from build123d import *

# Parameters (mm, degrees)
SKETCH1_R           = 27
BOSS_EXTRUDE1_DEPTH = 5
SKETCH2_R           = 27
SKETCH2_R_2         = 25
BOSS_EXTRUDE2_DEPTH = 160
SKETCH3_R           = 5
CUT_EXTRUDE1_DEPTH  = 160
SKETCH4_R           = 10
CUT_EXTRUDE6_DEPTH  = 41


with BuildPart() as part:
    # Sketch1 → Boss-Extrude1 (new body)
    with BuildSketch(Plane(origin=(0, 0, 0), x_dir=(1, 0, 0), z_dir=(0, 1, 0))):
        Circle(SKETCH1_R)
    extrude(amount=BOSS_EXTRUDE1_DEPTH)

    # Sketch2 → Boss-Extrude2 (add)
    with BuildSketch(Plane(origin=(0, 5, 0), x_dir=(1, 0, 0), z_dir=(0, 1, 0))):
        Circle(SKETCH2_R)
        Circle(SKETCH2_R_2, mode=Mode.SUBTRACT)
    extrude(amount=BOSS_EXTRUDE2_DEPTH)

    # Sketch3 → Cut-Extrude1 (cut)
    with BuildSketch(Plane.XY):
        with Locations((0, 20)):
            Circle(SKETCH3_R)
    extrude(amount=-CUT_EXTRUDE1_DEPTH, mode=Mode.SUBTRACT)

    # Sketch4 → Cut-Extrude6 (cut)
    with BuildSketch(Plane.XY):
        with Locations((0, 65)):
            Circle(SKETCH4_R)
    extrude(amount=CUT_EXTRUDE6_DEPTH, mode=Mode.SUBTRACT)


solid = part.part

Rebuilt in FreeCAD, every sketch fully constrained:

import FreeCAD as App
import Part
import Sketcher
Q = App.Units.Quantity

doc = App.newDocument("Part")
params = doc.addObject("Spreadsheet::Sheet", "Params")
for row, (alias, value) in enumerate([
    ("sketch1_diameter", "54 mm"),
    ("pad1_length", "5 mm"),
    ("sketch2_diameter", "54 mm"),
    ("sketch2_diameter2", "50 mm"),
    ("pad2_length", "160 mm"),
    ("sketch3_diameter", "10 mm"),
    ("pocket1_length", "160 mm"),
    ("sketch4_diameter", "20 mm"),
    ("pocket2_length", "41 mm"),
], start=1):
    params.set(f"A{row}", alias)
    params.set(f"B{row}", "=" + value)
    params.setAlias(f"B{row}", alias)

body = doc.addObject("PartDesign::Body", "Body")

# Sketch on XZ plane
sketch1 = doc.addObject("Sketcher::SketchObject", "Sketch")
body.addObject(sketch1)
sketch1.AttachmentSupport = (doc.XZ_Plane, [""])
sketch1.MapMode = "FlatFace"
sketch1.addGeometry(Part.Circle(App.Vector(0, 0, 0), App.Vector(0, 0, 1), 27), False)
sketch1.addConstraint(Sketcher.Constraint("Coincident", 0, 3, -1, 1))
sketch1.addConstraint(Sketcher.Constraint("Diameter", 0, Q("54 mm")))
sketch1.setExpression("Constraints[1]", "Params.sketch1_diameter")
pad1 = doc.addObject("PartDesign::Pad", "Pad")
body.addObject(pad1)
pad1.Profile = sketch1
pad1.setExpression("Length", "Params.pad1_length")
pad1.Reversed = True

# Sketch on XZ plane
sketch2 = doc.addObject("Sketcher::SketchObject", "Sketch001")
body.addObject(sketch2)
sketch2.AttachmentSupport = (doc.XZ_Plane, [""])
sketch2.MapMode = "FlatFace"
sketch2.AttachmentOffset = App.Placement(App.Vector(0, 0, -5), App.Rotation())
sketch2.addGeometry(Part.Circle(App.Vector(0, 0, 0), App.Vector(0, 0, 1), 27), False)
sketch2.addGeometry(Part.Circle(App.Vector(0, 0, 0), App.Vector(0, 0, 1), 25), False)
sketch2.addConstraint(Sketcher.Constraint("Coincident", 0, 3, -1, 1))
sketch2.addConstraint(Sketcher.Constraint("Coincident", 1, 3, -1, 1))
sketch2.addConstraint(Sketcher.Constraint("Diameter", 0, Q("54 mm")))
sketch2.addConstraint(Sketcher.Constraint("Diameter", 1, Q("50 mm")))
sketch2.setExpression("Constraints[2]", "Params.sketch2_diameter")
sketch2.setExpression("Constraints[3]", "Params.sketch2_diameter2")
pad2 = doc.addObject("PartDesign::Pad", "Pad001")
body.addObject(pad2)
pad2.Profile = sketch2
pad2.setExpression("Length", "Params.pad2_length")
pad2.Reversed = True

# Sketch on XY plane
sketch3 = doc.addObject("Sketcher::SketchObject", "Sketch002")
body.addObject(sketch3)
sketch3.AttachmentSupport = (doc.XY_Plane, [""])
sketch3.MapMode = "FlatFace"
sketch3.addGeometry(Part.Circle(App.Vector(0, 20, 0), App.Vector(0, 0, 1), 5), False)
sketch3.addConstraint(Sketcher.Constraint("PointOnObject", 0, 3, -2))
sketch3.addConstraint(Sketcher.Constraint("Diameter", 0, Q("10 mm")))
sketch3.addConstraint(Sketcher.Constraint("DistanceY", -1, 1, 0, 3, Q("20 mm")))
sketch3.setExpression("Constraints[1]", "Params.sketch3_diameter")
pocket1 = doc.addObject("PartDesign::Pocket", "Pocket")
body.addObject(pocket1)
pocket1.Profile = sketch3
pocket1.setExpression("Length", "Params.pocket1_length")

# Sketch on XY plane
sketch4 = doc.addObject("Sketcher::SketchObject", "Sketch003")
body.addObject(sketch4)
sketch4.AttachmentSupport = (doc.XY_Plane, [""])
sketch4.MapMode = "FlatFace"
sketch4.addGeometry(Part.Circle(App.Vector(0, 65, 0), App.Vector(0, 0, 1), 10), False)
sketch4.addConstraint(Sketcher.Constraint("PointOnObject", 0, 3, -2))
sketch4.addConstraint(Sketcher.Constraint("Diameter", 0, Q("20 mm")))
sketch4.addConstraint(Sketcher.Constraint("DistanceY", -1, 1, 0, 3, Q("65 mm")))
sketch4.setExpression("Constraints[1]", "Params.sketch4_diameter")
pocket2 = doc.addObject("PartDesign::Pocket", "Pocket001")
body.addObject(pocket2)
pocket2.Profile = sketch4
pocket2.setExpression("Length", "Params.pocket2_length")
pocket2.Reversed = True

doc.recompute()
